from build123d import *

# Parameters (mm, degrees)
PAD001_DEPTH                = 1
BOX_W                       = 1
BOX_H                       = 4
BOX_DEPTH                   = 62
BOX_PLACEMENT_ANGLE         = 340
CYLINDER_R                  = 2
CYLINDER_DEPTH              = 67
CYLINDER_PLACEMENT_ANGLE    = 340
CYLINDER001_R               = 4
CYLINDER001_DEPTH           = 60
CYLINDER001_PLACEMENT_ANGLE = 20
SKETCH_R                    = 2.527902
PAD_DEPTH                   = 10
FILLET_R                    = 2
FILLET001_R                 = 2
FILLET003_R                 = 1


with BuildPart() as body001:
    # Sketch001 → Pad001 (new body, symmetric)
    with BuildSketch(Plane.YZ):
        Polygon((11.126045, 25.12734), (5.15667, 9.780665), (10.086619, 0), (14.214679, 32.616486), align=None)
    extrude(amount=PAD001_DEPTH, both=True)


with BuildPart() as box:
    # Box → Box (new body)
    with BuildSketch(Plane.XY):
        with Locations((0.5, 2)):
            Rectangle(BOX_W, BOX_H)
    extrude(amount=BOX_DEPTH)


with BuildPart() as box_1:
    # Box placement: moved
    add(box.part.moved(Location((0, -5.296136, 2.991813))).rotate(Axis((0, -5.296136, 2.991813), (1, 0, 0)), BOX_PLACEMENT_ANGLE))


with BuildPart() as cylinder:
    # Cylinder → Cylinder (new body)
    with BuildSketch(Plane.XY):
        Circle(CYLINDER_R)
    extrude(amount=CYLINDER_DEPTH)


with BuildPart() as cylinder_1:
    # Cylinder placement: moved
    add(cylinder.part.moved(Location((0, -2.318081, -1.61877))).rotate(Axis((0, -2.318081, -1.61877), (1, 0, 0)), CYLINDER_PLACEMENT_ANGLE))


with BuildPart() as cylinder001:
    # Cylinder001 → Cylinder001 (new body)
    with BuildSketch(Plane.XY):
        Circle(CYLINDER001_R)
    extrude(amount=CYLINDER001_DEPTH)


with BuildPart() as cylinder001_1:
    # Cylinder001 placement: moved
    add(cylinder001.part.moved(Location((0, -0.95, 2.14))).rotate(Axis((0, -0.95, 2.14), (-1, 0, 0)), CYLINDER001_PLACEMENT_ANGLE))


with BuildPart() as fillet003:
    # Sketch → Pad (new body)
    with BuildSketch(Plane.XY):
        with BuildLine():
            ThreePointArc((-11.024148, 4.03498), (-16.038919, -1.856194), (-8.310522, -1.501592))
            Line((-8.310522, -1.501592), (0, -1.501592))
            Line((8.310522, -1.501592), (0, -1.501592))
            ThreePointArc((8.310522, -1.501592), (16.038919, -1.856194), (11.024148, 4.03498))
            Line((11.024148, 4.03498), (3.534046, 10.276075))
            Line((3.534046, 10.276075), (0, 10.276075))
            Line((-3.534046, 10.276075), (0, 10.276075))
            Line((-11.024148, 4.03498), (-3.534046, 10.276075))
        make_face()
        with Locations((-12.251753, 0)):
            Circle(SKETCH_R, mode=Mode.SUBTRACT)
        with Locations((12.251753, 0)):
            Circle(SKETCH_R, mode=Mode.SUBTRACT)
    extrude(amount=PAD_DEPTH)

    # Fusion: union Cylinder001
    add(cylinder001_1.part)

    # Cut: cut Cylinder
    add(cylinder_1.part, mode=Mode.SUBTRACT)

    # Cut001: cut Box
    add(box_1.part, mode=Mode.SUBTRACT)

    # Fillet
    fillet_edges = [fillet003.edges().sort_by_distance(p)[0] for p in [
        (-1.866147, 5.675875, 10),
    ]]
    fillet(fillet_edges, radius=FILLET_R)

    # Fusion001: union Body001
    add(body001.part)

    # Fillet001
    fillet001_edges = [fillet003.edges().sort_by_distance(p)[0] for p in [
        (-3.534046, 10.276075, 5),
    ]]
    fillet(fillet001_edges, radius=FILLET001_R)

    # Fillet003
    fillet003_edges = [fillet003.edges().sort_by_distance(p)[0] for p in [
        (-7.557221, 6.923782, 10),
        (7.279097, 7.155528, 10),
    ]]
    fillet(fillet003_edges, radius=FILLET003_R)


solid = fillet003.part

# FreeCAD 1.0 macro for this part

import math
import FreeCAD as App
import Part
import Sketcher
from FreeCAD import Vector


def edges_at(feature, points):
    """Names of the edges that pass closest to the given points."""
    edges = feature.Shape.Edges
    near = lambda p: min(range(len(edges)), key=lambda i: edges[i].distToShape(Part.Vertex(*p))[0])
    return sorted({f"Edge{near(p) + 1}" for p in points})


def add_polygon(sketch, points):
    """Adds a closed chain of lines whose ends are joined by coincident constraints."""
    first, n = sketch.GeometryCount, len(points)
    for a, b in zip(points, points[1:] + points[:1]):
        sketch.addGeometry(Part.LineSegment(App.Vector(*a, 0), App.Vector(*b, 0)), False)
    for i in range(n):
        sketch.addConstraint(Sketcher.Constraint("Coincident", first + i, 2, first + (i + 1) % n, 1))

doc = App.newDocument("Part")
body = doc.addObject("PartDesign::Body", "Body")

# Sketch on YZ plane
sketch1 = body.newObject("Sketcher::SketchObject", "Sketch")
sketch1.AttachmentSupport = (doc.getObject("YZ_Plane"), [""])
sketch1.MapMode = "FlatFace"
add_polygon(sketch1, [(11, 25), (5, 10), (10, 0), (14, 33)])  # lines 0-3
sketch1.addConstraint(Sketcher.Constraint("PointOnObject", 1, 2, -1))
sketch1.addConstraint(Sketcher.Constraint("Distance", 0, 16.46675))
sketch1.addConstraint(Sketcher.Constraint("Distance", 1, 10.95289))
sketch1.addConstraint(Sketcher.Constraint("Distance", 2, 32.876679))
sketch1.addConstraint(Sketcher.Constraint("DistanceX", -1, 1, 0, 2, 5.15667))
sketch1.addConstraint(Sketcher.Constraint("DistanceX", -1, 1, 1, 2, 10.086619))
sketch1.addConstraint(Sketcher.Constraint("DistanceX", -1, 1, 2, 2, 14.214679))
sketch1.addConstraint(Sketcher.Constraint("DistanceY", -1, 1, 3, 2, 25.12734))
pad1 = body.newObject("PartDesign::Pad", "Pad")
pad1.Profile = sketch1
pad1.Length = 2
pad1.Midplane = True
body2 = doc.addObject("PartDesign::Body", "Body001")

# Sketch on XY plane
sketch2 = body2.newObject("Sketcher::SketchObject", "Sketch001")
sketch2.AttachmentSupport = (doc.getObject("XY_Plane001"), [""])
sketch2.MapMode = "FlatFace"
add_polygon(sketch2, [(0, 4), (0, 0), (1, 0), (1, 4)])  # lines 0-3
sketch2.addConstraint(Sketcher.Constraint("Vertical", 0))
sketch2.addConstraint(Sketcher.Constraint("Horizontal", 1))
sketch2.addConstraint(Sketcher.Constraint("Vertical", 2))
sketch2.addConstraint(Sketcher.Constraint("Horizontal", 3))
sketch2.addConstraint(Sketcher.Constraint("Coincident", 0, 2, -1, 1))
sketch2.addConstraint(Sketcher.Constraint("DistanceX", 1, 1, 1, 2, 1.0))
sketch2.addConstraint(Sketcher.Constraint("DistanceY", 0, 2, 0, 1, 4.0))
pad2 = body2.newObject("PartDesign::Pad", "Pad001")
pad2.Profile = sketch2
pad2.Length = 62
body3 = doc.addObject("PartDesign::Body", "Body002")
doc.recompute()

body2.Placement = App.Placement(Vector(0, -5.296136, 2.991813), App.Rotation(Vector(1, 0, 0), 340))
boolean = body3.newObject("PartDesign::Boolean", "Boolean")
boolean.Type = "Fuse"
boolean.addObjects([body2])
body4 = doc.addObject("PartDesign::Body", "Body003")

# Sketch on XY plane
sketch3 = body4.newObject("Sketcher::SketchObject", "Sketch002")
sketch3.AttachmentSupport = (doc.getObject("XY_Plane003"), [""])
sketch3.MapMode = "FlatFace"
sketch3.addGeometry(Part.Circle(Vector(0, 0, 0), Vector(0, 0, 1), 2), False)
sketch3.addConstraint(Sketcher.Constraint("Coincident", 0, 3, -1, 1))
sketch3.addConstraint(Sketcher.Constraint("Diameter", 0, 4.0))
pad3 = body4.newObject("PartDesign::Pad", "Pad002")
pad3.Profile = sketch3
pad3.Length = 67
body5 = doc.addObject("PartDesign::Body", "Body004")
doc.recompute()

body4.Placement = App.Placement(Vector(0, -2.318081, -1.61877), App.Rotation(Vector(1, 0, 0), 340))
boolean2 = body5.newObject("PartDesign::Boolean", "Boolean001")
boolean2.Type = "Fuse"
boolean2.addObjects([body4])
body6 = doc.addObject("PartDesign::Body", "Body005")

# Sketch on XY plane
sketch4 = body6.newObject("Sketcher::SketchObject", "Sketch003")
sketch4.AttachmentSupport = (doc.getObject("XY_Plane005"), [""])
sketch4.MapMode = "FlatFace"
sketch4.addGeometry(Part.Circle(Vector(0, 0, 0), Vector(0, 0, 1), 4), False)
sketch4.addConstraint(Sketcher.Constraint("Coincident", 0, 3, -1, 1))
sketch4.addConstraint(Sketcher.Constraint("Diameter", 0, 8.0))
pad4 = body6.newObject("PartDesign::Pad", "Pad003")
pad4.Profile = sketch4
pad4.Length = 60
body7 = doc.addObject("PartDesign::Body", "Body006")
doc.recompute()

body6.Placement = App.Placement(Vector(0, -0.95, 2.14), App.Rotation(Vector(-1, 0, 0), 20))
boolean3 = body7.newObject("PartDesign::Boolean", "Boolean002")
boolean3.Type = "Fuse"
boolean3.addObjects([body6])
body8 = doc.addObject("PartDesign::Body", "Body007")

# Sketch on XY plane
sketch5 = body8.newObject("Sketcher::SketchObject", "Sketch004")
sketch5.AttachmentSupport = (doc.getObject("XY_Plane007"), [""])
sketch5.MapMode = "FlatFace"
sketch5.addGeometry(Part.ArcOfCircle(Part.Circle(Vector(-12.3, 0, 0), Vector(0, 0, 1), 4.2), math.radians(73), math.radians(339)), False)
sketch5.addGeometry(Part.LineSegment(Vector(-8.3, -1.5, 0), Vector(8.3, -1.5, 0)), False)
sketch5.addGeometry(Part.ArcOfCircle(Part.Circle(Vector(12.3, 0, 0), Vector(0, 0, 1), 4.2), math.radians(-159), math.radians(107)), False)
sketch5.addGeometry(Part.LineSegment(Vector(11, 4, 0), Vector(3.5, 10.3, 0)), False)
sketch5.addGeometry(Part.LineSegment(Vector(3.5, 10.3, 0), Vector(-3.5, 10.3, 0)), False)
sketch5.addGeometry(Part.LineSegment(Vector(-3.5, 10.3, 0), Vector(-11, 4, 0)), False)
sketch5.addGeometry(Part.Circle(Vector(-12.3, 0, 0), Vector(0, 0, 1), 2.5), False)
sketch5.addGeometry(Part.Circle(Vector(12.3, 0, 0), Vector(0, 0, 1), 2.5), False)
sketch5.addConstraint(Sketcher.Constraint("Coincident", 0, 2, 1, 1))
sketch5.addConstraint(Sketcher.Constraint("Coincident", 1, 2, 2, 1))
sketch5.addConstraint(Sketcher.Constraint("Coincident", 2, 2, 3, 1))
sketch5.addConstraint(Sketcher.Constraint("Coincident", 3, 2, 4, 1))
sketch5.addConstraint(Sketcher.Constraint("Coincident", 4, 2, 5, 1))
sketch5.addConstraint(Sketcher.Constraint("Coincident", 5, 2, 0, 1))
sketch5.addConstraint(Sketcher.Constraint("Horizontal", 1))
sketch5.addConstraint(Sketcher.Constraint("Horizontal", 4))
sketch5.addConstraint(Sketcher.Constraint("Coincident", 6, 3, 0, 3))
sketch5.addConstraint(Sketcher.Constraint("Coincident", 7, 3, 2, 3))
sketch5.addConstraint(Sketcher.Constraint("Equal", 0, 2))
sketch5.addConstraint(Sketcher.Constraint("Equal", 6, 7))
sketch5.addConstraint(Sketcher.Constraint("Symmetric", 0, 3, 2, 3, -1, 1))
sketch5.addConstraint(Sketcher.Constraint("Symmetric", 2, 2, 5, 2, -2))
sketch5.addConstraint(Sketcher.Constraint("Equal", 3, 5))
sketch5.addConstraint(Sketcher.Constraint("Radius", 0, 4.217592))
sketch5.addConstraint(Sketcher.Constraint("Diameter", 6, 5.055804))
sketch5.addConstraint(Sketcher.Constraint("DistanceX", 6, 3, 2, 2, 23.275901))
sketch5.addConstraint(Sketcher.Constraint("DistanceX", 3, 2, 2, 2, 7.490102))
sketch5.addConstraint(Sketcher.Constraint("DistanceX", 1, 1, 1, 2, 16.621044))
sketch5.addConstraint(Sketcher.Constraint("DistanceX", 4, 2, 4, 1, 7.068092))
sketch5.addConstraint(Sketcher.Constraint("Distance", 3, 9.749507))
pad5 = body8.newObject("PartDesign::Pad", "Pad004")
pad5.Profile = sketch5
pad5.Length = 10
doc.recompute()

boolean4 = body8.newObject("PartDesign::Boolean", "Boolean003")
boolean4.Type = "Fuse"
boolean4.addObjects([body7])
doc.recompute()

boolean5 = body8.newObject("PartDesign::Boolean", "Boolean004")
boolean5.Type = "Cut"
boolean5.addObjects([body5])
doc.recompute()

boolean6 = body8.newObject("PartDesign::Boolean", "Boolean005")
boolean6.Type = "Cut"
boolean6.addObjects([body3])
doc.recompute()

fillet = body8.newObject("PartDesign::Fillet", "Fillet")
fillet.Base = (boolean6, edges_at(boolean6, [(-1.866, 5.676, 10)]))
fillet.Radius = 2
doc.recompute()

boolean7 = body8.newObject("PartDesign::Boolean", "Boolean006")
boolean7.Type = "Fuse"
boolean7.addObjects([body])
doc.recompute()

fillet2 = body8.newObject("PartDesign::Fillet", "Fillet001")
fillet2.Base = (boolean7, edges_at(boolean7, [(-3.534, 10.276, 5)]))
fillet2.Radius = 2
doc.recompute()

fillet3 = body8.newObject("PartDesign::Fillet", "Fillet002")
fillet3.Base = (fillet2, edges_at(fillet2, [(-7.557, 6.924, 10), (7.279, 7.156, 10)]))
fillet3.Radius = 1

doc.recompute()
